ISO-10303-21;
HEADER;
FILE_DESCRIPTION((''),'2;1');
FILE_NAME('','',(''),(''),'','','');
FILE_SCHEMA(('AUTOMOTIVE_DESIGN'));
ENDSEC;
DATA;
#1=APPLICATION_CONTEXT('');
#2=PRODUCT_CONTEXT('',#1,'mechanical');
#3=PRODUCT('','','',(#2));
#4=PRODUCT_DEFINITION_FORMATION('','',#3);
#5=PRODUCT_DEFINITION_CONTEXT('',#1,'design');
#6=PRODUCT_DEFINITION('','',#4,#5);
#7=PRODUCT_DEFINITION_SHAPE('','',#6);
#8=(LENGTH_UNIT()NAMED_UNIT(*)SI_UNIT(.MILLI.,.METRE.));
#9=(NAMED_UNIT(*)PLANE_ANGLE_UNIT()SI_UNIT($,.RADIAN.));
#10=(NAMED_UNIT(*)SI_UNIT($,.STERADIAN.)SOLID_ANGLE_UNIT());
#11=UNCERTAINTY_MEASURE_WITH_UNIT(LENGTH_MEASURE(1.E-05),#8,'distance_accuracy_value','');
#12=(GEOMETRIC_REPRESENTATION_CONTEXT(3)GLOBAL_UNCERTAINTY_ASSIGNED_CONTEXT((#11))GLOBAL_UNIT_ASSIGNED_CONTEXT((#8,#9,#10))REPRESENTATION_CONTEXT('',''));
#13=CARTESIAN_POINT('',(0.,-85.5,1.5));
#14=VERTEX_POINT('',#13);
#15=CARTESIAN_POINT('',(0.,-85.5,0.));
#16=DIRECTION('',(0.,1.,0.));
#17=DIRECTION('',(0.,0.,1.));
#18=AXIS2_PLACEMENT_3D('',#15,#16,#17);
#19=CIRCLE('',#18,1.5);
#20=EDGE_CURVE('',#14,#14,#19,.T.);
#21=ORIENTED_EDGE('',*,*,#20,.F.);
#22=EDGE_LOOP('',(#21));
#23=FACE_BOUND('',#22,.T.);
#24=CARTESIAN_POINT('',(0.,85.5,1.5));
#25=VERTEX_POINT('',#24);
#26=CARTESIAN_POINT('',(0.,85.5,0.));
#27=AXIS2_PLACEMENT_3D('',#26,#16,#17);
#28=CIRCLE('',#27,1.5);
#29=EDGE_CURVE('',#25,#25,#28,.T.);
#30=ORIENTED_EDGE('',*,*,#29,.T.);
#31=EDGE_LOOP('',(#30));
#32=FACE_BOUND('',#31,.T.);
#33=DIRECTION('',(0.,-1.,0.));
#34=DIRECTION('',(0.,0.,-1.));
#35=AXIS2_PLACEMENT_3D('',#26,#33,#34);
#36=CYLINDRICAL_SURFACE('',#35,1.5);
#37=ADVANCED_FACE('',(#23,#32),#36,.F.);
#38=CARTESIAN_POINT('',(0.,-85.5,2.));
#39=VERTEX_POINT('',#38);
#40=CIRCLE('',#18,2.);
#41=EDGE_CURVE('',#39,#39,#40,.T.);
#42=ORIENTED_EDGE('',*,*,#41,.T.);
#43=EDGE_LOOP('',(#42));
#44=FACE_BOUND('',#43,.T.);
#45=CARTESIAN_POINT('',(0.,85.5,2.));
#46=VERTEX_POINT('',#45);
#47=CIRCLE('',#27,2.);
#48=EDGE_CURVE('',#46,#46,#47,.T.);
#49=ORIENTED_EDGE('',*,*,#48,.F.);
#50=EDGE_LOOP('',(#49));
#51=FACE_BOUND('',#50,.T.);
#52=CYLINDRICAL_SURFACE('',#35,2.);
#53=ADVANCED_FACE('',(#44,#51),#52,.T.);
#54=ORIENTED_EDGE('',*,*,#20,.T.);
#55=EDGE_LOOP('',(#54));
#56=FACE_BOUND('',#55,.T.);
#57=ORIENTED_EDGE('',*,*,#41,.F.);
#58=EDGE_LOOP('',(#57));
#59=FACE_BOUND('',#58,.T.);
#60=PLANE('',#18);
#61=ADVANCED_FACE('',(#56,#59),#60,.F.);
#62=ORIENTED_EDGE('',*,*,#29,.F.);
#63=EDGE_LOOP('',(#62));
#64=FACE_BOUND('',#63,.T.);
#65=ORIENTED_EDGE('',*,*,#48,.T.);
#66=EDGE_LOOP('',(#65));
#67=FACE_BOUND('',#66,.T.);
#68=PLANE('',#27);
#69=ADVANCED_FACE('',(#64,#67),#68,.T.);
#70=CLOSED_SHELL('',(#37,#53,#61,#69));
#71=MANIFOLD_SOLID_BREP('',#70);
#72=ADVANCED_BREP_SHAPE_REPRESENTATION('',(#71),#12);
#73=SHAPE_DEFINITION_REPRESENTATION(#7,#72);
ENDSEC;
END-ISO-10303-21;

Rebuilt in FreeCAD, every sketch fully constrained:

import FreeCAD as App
import Part
import Sketcher

doc = App.newDocument("Part")
body = doc.addObject("PartDesign::Body", "Body")

# Sketch on XZ plane
sketch1 = doc.addObject("Sketcher::SketchObject", "Sketch")
body.addObject(sketch1)
sketch1.AttachmentSupport = (doc.XZ_Plane, [""])
sketch1.MapMode = "FlatFace"
sketch1.addGeometry([
    Part.Circle(App.Vector(0, 0, 0), App.Vector(0, 0, 1), 2),
    Part.Circle(App.Vector(0, 0, 0), App.Vector(0, 0, 1), 1.5),
], False)
sketch1.addConstraint([
    Sketcher.Constraint("Coincident", 0, 3, -1, 1),
    Sketcher.Constraint("Coincident", 1, 3, -1, 1),
    Sketcher.Constraint("Diameter", 0, 4.0),
    Sketcher.Constraint("Diameter", 1, 3.0),
])
pad1 = doc.addObject("PartDesign::Pad", "Pad")
body.addObject(pad1)
pad1.Profile = sketch1
pad1.Length = 171
pad1.Midplane = True

doc.recompute()
